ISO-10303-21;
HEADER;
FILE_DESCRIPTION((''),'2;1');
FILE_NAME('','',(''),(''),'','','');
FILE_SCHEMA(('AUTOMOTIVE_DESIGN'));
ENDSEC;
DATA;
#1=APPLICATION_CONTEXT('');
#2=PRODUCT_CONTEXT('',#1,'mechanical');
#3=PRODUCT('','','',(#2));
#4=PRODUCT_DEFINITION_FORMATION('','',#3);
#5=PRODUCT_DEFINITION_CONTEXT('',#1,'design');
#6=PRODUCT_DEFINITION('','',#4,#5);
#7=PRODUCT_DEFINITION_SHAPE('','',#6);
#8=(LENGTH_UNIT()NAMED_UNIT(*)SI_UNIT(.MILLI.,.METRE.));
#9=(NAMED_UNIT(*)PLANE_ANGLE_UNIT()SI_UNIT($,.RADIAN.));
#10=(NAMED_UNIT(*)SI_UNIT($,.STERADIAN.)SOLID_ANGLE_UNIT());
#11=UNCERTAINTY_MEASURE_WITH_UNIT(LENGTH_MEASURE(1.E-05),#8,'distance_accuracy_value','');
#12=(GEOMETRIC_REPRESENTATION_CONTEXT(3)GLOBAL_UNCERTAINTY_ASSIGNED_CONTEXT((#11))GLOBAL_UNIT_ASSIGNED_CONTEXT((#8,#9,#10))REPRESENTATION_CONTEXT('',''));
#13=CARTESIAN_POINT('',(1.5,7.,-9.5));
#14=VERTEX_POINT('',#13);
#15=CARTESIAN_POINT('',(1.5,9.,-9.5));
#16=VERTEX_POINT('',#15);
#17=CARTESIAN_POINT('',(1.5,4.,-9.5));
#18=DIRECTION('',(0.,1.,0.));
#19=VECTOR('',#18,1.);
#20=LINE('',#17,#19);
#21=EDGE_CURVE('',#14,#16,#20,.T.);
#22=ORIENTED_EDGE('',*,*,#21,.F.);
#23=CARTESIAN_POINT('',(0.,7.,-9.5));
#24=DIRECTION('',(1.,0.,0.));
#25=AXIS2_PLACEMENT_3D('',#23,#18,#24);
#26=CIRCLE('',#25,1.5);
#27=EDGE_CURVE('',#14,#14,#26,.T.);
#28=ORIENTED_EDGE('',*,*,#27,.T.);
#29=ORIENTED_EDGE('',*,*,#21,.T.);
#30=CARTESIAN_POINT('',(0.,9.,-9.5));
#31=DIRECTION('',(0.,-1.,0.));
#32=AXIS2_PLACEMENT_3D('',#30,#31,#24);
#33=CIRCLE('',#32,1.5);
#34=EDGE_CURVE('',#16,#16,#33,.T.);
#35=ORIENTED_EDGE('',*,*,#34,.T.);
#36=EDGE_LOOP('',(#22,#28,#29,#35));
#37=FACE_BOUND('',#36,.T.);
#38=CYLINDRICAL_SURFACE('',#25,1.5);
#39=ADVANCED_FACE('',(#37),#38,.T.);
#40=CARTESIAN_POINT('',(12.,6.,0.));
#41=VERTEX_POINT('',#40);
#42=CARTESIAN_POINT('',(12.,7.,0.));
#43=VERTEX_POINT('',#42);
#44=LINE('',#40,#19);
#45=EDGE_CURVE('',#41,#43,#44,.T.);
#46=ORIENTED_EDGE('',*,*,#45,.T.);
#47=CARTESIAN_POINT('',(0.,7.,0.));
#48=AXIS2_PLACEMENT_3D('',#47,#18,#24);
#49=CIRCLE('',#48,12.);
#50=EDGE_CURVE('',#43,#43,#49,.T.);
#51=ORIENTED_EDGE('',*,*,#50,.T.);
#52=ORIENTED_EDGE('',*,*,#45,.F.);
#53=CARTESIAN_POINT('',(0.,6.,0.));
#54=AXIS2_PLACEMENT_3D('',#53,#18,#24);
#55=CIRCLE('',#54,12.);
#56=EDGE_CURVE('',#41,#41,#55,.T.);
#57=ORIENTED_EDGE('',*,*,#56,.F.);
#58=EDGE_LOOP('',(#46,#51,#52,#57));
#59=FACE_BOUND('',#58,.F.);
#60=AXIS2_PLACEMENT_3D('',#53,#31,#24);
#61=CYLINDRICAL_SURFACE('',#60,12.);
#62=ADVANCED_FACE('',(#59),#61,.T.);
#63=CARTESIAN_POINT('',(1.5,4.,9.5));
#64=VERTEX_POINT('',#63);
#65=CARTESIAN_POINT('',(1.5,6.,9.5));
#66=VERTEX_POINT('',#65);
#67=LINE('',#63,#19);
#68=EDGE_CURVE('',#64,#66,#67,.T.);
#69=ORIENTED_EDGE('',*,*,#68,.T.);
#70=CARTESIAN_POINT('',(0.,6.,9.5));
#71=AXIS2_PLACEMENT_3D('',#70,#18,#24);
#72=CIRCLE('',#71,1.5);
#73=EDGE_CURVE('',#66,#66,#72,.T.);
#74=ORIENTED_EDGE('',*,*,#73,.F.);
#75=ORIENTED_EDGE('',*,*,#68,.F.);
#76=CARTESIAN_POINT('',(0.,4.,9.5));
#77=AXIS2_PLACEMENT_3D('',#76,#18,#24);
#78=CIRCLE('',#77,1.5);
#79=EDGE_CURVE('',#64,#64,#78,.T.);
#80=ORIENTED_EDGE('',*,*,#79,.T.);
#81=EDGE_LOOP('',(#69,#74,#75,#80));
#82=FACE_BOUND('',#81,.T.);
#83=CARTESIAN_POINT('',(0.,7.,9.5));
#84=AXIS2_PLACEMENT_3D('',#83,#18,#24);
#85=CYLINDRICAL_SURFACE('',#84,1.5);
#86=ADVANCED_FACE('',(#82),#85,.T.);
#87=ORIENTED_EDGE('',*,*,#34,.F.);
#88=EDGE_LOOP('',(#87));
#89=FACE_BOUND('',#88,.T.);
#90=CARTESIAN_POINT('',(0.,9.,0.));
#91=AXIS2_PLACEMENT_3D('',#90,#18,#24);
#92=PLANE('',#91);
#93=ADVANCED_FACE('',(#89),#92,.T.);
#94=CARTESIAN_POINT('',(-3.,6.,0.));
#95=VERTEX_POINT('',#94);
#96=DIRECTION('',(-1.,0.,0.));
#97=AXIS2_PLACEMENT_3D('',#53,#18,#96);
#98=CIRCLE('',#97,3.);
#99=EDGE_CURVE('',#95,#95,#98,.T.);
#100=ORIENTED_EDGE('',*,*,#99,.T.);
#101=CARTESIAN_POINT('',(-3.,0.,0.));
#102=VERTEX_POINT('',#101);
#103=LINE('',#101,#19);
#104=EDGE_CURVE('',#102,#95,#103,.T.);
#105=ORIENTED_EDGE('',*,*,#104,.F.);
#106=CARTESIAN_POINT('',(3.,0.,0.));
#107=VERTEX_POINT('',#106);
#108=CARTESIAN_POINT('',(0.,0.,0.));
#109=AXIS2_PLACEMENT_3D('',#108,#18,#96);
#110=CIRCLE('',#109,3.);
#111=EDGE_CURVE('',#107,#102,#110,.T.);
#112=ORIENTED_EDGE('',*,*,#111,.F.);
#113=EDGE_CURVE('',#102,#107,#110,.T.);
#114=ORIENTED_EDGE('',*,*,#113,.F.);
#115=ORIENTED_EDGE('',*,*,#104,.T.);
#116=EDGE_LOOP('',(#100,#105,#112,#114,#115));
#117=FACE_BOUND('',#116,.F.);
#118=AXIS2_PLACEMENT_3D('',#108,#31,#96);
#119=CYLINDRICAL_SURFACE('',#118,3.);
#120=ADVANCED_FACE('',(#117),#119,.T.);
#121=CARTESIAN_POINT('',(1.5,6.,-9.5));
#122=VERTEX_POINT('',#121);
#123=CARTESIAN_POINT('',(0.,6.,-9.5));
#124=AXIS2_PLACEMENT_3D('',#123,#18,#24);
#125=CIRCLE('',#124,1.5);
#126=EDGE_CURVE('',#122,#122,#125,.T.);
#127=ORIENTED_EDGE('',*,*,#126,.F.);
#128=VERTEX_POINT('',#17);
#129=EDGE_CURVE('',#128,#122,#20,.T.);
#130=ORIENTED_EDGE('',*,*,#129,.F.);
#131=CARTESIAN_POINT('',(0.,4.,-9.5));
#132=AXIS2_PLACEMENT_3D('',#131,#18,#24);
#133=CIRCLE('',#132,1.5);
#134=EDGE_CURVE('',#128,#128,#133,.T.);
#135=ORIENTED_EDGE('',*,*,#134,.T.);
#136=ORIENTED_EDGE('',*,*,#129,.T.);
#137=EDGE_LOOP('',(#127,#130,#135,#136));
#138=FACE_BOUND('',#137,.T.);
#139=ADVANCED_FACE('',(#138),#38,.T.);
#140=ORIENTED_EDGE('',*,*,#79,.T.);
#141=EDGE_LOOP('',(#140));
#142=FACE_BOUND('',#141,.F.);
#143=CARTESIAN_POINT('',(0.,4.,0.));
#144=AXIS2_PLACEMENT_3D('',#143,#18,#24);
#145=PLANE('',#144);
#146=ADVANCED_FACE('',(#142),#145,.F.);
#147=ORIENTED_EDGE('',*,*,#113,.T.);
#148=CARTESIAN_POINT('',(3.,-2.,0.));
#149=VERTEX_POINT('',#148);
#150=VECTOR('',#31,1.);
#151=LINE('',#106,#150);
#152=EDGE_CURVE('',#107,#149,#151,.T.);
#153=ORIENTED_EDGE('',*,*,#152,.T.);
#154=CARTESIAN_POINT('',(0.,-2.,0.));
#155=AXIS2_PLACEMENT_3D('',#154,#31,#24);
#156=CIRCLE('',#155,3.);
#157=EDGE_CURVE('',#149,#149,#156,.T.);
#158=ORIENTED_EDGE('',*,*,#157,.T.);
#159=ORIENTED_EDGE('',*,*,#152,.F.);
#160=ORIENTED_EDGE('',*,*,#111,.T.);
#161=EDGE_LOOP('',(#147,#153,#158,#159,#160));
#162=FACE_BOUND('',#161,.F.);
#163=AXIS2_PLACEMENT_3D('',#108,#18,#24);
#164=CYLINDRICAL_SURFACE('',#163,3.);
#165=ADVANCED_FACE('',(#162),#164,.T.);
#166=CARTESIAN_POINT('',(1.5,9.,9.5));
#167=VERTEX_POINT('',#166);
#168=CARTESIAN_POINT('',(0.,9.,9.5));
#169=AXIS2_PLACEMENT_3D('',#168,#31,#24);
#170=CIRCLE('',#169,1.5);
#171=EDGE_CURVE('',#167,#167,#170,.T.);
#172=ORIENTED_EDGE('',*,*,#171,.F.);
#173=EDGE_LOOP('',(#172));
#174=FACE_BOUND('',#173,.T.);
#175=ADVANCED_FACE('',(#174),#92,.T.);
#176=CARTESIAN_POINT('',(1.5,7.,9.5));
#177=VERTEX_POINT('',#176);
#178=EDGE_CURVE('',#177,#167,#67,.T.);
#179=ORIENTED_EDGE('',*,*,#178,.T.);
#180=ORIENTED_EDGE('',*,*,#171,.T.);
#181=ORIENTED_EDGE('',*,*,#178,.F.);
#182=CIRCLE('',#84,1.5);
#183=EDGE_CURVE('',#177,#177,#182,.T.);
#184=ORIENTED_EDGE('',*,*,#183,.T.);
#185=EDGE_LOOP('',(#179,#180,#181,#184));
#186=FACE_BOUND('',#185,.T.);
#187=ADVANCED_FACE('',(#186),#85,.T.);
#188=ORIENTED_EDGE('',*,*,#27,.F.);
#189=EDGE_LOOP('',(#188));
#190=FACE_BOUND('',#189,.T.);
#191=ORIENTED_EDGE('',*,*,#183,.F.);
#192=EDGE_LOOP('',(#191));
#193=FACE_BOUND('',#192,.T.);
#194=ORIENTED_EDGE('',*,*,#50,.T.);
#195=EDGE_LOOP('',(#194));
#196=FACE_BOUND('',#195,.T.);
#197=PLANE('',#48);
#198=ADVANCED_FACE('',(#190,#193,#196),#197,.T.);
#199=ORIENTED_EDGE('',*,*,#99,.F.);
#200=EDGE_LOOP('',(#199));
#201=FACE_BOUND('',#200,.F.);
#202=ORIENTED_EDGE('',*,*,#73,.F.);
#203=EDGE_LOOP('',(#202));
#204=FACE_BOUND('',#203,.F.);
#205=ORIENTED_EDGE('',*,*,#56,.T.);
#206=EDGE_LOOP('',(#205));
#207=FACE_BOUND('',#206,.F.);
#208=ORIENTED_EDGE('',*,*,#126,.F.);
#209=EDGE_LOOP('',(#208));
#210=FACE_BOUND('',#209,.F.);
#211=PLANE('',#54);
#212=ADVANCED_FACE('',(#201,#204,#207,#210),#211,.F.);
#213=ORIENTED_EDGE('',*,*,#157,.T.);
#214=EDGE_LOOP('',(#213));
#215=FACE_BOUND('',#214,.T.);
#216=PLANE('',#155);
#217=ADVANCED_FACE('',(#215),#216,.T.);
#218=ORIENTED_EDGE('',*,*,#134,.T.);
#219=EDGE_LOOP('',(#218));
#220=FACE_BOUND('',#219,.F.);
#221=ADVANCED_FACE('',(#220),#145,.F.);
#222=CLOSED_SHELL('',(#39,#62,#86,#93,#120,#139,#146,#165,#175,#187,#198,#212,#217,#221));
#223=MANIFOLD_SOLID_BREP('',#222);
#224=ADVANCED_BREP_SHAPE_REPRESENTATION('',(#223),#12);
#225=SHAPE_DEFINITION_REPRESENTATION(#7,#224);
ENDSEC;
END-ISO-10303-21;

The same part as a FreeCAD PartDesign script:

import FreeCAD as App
import Part
import Sketcher

V = App.Vector
Q = App.Units.Quantity

doc = App.newDocument("Part")
body = doc.addObject("PartDesign::Body", "Body")

# Sketch on XZ plane
sketch1 = body.newObject("Sketcher::SketchObject", "Sketch")
sketch1.AttachmentSupport = (doc.getObject("XZ_Plane"), [""])
sketch1.MapMode = "FlatFace"
sketch1.addGeometry(Part.Circle(V(0, 0, 0), V(0, 0, 1), 3), False)
sketch1.addConstraint([
    Sketcher.Constraint("Coincident", 0, 3, -1, 1),
    Sketcher.Constraint("Diameter", 0, Q("6 mm")),
])
pad1 = body.newObject("PartDesign::Pad", "Pad")
pad1.Profile = sketch1
pad1.Length = 6
pad1.Reversed = True

# Sketch on XZ plane
sketch2 = body.newObject("Sketcher::SketchObject", "Sketch001")
sketch2.AttachmentSupport = (doc.getObject("XZ_Plane"), [""])
sketch2.MapMode = "FlatFace"
sketch2.AttachmentOffset = App.Placement(V(0, 0, -6), App.Rotation())
sketch2.addGeometry(Part.Circle(V(0, 0, 0), V(0, 0, 1), 12), False)
sketch2.addConstraint([
    Sketcher.Constraint("Coincident", 0, 3, -1, 1),
    Sketcher.Constraint("Diameter", 0, Q("24 mm")),
])
pad2 = body.newObject("PartDesign::Pad", "Pad001")
pad2.Profile = sketch2
pad2.Length = 1
pad2.Reversed = True

# Sketch on XZ plane
sketch3 = body.newObject("Sketcher::SketchObject", "Sketch002")
sketch3.AttachmentSupport = (doc.getObject("XZ_Plane"), [""])
sketch3.MapMode = "FlatFace"
sketch3.AttachmentOffset = App.Placement(V(0, 0, -7), App.Rotation())
sketch3.addGeometry([
    Part.Circle(V(0, 9.5, 0), V(0, 0, 1), 1.5),
    Part.Circle(V(0, -9.5, 0), V(0, 0, 1), 1.5),
], False)
sketch3.addConstraint([
    Sketcher.Constraint("Equal", 0, 1),
    Sketcher.Constraint("Symmetric", 0, 3, 1, 3, -1, 1),
    Sketcher.Constraint("PointOnObject", 0, 3, -2),
    Sketcher.Constraint("Diameter", 0, Q("3 mm")),
    Sketcher.Constraint("DistanceY", 1, 3, 0, 3, Q("19 mm")),
])
pad3 = body.newObject("PartDesign::Pad", "Pad002")
pad3.Profile = sketch3
pad3.Type = "TwoLengths"
pad3.Length = 2
pad3.Length2 = 3
pad3.Reversed = True

# Sketch on XZ plane
sketch4 = body.newObject("Sketcher::SketchObject", "Sketch003")
sketch4.AttachmentSupport = (doc.getObject("XZ_Plane"), [""])
sketch4.MapMode = "FlatFace"
sketch4.addGeometry(Part.Circle(V(0, 0, 0), V(0, 0, 1), 3), False)
sketch4.addConstraint([
    Sketcher.Constraint("Coincident", 0, 3, -1, 1),
    Sketcher.Constraint("Diameter", 0, Q("6 mm")),
])
pad4 = body.newObject("PartDesign::Pad", "Pad003")
pad4.Profile = sketch4
pad4.Length = 2

doc.recompute()
